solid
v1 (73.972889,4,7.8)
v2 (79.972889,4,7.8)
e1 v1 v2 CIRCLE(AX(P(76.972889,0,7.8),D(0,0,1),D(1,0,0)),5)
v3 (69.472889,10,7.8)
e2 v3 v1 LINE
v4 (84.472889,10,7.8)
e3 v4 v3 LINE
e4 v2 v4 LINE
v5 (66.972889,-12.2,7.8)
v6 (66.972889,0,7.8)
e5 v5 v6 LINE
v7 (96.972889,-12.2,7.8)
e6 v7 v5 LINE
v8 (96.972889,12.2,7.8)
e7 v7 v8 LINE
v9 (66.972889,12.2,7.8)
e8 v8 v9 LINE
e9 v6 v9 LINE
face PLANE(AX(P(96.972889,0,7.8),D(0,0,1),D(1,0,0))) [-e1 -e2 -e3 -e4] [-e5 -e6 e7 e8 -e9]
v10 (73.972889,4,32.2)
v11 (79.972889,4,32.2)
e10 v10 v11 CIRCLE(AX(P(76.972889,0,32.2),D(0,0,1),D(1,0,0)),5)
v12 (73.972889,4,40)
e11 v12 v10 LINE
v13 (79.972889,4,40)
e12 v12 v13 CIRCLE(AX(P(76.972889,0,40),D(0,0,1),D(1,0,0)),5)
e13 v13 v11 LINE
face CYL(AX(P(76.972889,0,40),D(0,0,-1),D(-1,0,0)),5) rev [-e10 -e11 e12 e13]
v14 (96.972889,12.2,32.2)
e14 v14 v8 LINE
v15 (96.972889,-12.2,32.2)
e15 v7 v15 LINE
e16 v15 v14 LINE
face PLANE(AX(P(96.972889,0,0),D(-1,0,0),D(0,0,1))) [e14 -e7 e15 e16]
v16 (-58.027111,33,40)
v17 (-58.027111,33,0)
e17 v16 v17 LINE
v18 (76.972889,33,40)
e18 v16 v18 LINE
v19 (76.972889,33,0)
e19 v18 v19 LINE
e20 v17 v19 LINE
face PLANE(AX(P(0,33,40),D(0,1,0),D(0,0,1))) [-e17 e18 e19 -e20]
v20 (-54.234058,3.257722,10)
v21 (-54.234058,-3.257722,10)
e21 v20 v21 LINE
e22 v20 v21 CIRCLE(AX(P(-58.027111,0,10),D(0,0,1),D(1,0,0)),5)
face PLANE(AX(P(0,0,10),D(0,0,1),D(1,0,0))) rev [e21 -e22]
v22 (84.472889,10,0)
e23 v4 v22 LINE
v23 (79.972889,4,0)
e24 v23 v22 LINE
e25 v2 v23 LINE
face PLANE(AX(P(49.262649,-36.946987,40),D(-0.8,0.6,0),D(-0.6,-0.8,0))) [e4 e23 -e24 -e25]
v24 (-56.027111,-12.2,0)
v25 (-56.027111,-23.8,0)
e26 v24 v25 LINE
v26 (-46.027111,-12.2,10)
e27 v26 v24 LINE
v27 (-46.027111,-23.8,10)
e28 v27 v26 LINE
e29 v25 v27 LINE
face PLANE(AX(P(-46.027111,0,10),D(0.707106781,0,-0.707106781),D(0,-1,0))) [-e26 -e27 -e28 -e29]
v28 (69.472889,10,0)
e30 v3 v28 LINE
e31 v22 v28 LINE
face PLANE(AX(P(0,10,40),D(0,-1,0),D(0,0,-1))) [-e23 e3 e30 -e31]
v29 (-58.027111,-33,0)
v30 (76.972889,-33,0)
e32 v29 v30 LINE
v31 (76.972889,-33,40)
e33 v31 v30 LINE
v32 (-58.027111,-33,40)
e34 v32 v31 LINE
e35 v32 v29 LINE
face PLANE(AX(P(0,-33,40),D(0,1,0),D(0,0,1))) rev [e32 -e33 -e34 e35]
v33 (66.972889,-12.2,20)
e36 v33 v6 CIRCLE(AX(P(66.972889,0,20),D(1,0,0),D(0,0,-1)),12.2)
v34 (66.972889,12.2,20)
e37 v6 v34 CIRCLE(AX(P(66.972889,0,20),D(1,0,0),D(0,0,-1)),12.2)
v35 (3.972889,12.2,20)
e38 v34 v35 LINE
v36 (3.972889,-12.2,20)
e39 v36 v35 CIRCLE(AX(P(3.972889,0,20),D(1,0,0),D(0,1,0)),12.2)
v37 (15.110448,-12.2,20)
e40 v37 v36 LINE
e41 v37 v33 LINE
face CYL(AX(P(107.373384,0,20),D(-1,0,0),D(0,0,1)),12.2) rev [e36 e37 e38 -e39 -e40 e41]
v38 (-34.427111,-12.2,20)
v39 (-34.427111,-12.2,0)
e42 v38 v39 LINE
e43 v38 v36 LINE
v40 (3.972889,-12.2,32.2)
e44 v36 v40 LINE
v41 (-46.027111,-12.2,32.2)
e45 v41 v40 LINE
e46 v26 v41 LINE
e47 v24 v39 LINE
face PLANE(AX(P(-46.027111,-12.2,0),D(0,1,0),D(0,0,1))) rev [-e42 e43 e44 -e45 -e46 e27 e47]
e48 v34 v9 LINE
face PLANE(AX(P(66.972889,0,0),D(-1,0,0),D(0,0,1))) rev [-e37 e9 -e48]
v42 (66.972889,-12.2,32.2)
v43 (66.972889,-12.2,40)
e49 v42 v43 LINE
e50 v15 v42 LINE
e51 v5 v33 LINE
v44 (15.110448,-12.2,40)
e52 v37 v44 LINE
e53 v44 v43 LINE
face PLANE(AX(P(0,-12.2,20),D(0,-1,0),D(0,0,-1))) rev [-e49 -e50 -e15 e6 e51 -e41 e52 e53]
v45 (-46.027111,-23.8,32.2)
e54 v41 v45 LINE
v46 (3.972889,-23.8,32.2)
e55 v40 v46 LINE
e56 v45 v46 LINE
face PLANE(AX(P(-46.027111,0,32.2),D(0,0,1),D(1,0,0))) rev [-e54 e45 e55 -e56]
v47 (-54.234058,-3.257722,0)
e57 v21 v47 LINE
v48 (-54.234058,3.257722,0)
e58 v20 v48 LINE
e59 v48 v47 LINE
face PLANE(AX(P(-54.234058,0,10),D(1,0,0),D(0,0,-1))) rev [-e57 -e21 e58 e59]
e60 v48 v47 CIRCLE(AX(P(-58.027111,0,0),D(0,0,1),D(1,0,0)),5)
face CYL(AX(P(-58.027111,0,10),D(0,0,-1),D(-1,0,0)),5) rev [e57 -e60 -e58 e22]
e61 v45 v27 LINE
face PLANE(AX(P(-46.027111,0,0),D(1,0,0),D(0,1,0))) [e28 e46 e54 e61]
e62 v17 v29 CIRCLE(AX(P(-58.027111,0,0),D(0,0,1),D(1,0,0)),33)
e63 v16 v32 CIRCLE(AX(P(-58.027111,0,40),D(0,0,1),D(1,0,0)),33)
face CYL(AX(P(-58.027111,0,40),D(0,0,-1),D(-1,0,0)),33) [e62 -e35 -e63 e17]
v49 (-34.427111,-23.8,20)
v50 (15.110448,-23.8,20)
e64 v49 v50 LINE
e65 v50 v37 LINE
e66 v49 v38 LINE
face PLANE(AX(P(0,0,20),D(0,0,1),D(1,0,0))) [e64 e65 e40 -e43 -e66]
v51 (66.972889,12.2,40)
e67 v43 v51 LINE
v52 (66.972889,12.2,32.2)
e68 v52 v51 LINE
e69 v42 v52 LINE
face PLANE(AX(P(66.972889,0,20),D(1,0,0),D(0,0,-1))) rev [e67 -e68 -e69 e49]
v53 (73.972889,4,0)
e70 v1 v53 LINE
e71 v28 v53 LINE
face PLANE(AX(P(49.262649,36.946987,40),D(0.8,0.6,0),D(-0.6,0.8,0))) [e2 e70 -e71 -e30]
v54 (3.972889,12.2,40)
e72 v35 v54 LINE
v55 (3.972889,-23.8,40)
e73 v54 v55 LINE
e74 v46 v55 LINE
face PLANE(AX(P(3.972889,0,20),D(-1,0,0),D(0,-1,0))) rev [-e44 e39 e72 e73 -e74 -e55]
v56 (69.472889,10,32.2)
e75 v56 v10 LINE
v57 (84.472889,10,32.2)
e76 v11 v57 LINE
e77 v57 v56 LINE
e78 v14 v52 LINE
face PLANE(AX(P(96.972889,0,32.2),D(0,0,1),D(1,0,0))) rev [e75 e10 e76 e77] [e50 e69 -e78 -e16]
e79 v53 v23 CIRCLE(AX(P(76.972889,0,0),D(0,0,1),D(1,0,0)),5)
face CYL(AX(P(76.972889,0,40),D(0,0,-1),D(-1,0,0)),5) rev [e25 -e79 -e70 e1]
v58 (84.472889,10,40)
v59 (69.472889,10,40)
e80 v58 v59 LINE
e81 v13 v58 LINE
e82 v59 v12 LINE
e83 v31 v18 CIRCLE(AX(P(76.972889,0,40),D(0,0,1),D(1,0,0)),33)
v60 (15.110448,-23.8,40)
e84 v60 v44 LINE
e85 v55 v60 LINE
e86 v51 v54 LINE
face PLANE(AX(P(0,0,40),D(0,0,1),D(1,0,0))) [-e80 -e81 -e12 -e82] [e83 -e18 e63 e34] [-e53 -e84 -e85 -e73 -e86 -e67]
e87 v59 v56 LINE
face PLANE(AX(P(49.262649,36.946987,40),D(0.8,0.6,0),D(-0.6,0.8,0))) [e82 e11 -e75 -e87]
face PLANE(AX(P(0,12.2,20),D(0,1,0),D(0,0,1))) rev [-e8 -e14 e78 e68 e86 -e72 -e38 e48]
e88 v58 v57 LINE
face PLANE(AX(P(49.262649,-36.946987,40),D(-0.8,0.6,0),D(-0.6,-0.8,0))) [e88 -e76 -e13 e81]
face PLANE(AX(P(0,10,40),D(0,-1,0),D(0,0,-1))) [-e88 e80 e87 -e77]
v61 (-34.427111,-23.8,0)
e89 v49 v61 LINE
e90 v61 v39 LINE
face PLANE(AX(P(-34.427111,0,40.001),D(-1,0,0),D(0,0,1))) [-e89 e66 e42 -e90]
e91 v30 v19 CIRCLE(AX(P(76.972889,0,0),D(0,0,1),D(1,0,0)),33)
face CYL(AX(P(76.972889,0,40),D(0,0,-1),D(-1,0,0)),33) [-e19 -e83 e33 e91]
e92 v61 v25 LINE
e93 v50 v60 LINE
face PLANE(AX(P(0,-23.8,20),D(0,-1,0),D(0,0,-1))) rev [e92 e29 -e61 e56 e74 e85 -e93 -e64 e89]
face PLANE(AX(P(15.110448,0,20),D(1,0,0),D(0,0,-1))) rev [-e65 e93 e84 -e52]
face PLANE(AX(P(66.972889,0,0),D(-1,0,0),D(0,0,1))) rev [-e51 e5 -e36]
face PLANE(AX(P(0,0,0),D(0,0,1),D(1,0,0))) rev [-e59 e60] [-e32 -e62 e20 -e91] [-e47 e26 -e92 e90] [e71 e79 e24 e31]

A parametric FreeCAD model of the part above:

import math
import FreeCAD as App
import Part
import Sketcher


def edges_at(feature, points):
    """Names of the edges that pass closest to the given points."""
    edges = feature.Shape.Edges
    near = lambda p: min(range(len(edges)), key=lambda i: edges[i].distToShape(Part.Vertex(*p))[0])
    return sorted({f"Edge{near(p) + 1}" for p in points})


def add_polygon(sketch, points):
    """Adds a closed chain of lines whose ends are joined by coincident constraints."""
    first, n = sketch.GeometryCount, len(points)
    for a, b in zip(points, points[1:] + points[:1]):
        sketch.addGeometry(Part.LineSegment(App.Vector(*a, 0), App.Vector(*b, 0)), False)
    for i in range(n):
        sketch.addConstraint(Sketcher.Constraint("Coincident", first + i, 2, first + (i + 1) % n, 1))

doc = App.newDocument("Part")
body = doc.addObject("PartDesign::Body", "Body")

sketch1 = body.newObject("Sketcher::SketchObject", "Sketch")
sketch1.AttachmentSupport = (doc.getObject("XY_Plane"), [""])
sketch1.MapMode = "FlatFace"
sketch1.addGeometry([
    Part.LineSegment(App.Vector(76.972889, 33, 0), App.Vector(-58.027111, 33, 0)),
    Part.ArcOfCircle(Part.Circle(App.Vector(-58.027111, 0, 0), App.Vector(0, 0, 1), 33), math.radians(90), math.radians(270)),
    Part.LineSegment(App.Vector(-58.027111, -33, 0), App.Vector(76.972889, -33, 0)),
    Part.ArcOfCircle(Part.Circle(App.Vector(76.972889, 0, 0), App.Vector(0, 0, 1), 33), math.radians(-90), math.radians(90)),
    Part.LineSegment(App.Vector(73.972889, 4, 0), App.Vector(69.472889, 10, 0)),
    Part.LineSegment(App.Vector(69.472889, 10, 0), App.Vector(84.472889, 10, 0)),
    Part.LineSegment(App.Vector(84.472889, 10, 0), App.Vector(79.972889, 4, 0)),
    Part.ArcOfCircle(Part.Circle(App.Vector(76.972889, 0, 0), App.Vector(0, 0, 1), 5), math.radians(126.869898), math.radians(413.130102)),
], False)
sketch1.addConstraint([
    Sketcher.Constraint("Tangent", 0, 2, 1, 1),
    Sketcher.Constraint("Tangent", 1, 2, 2, 1),
    Sketcher.Constraint("Tangent", 2, 2, 3, 1),
    Sketcher.Constraint("Tangent", 3, 2, 0, 1),
    Sketcher.Constraint("Coincident", 4, 2, 5, 1),
    Sketcher.Constraint("Coincident", 5, 2, 6, 1),
    Sketcher.Constraint("Coincident", 6, 2, 7, 2),
    Sketcher.Constraint("Coincident", 7, 1, 4, 1),
    Sketcher.Constraint("Horizontal", 0),
    Sketcher.Constraint("Horizontal", 2),
    Sketcher.Constraint("Horizontal", 5),
    Sketcher.Constraint("Coincident", 7, 3, 3, 3),
    Sketcher.Constraint("PointOnObject", 1, 3, -1),
    Sketcher.Constraint("Horizontal", 6, 2, 7, 1),
    Sketcher.Constraint("Equal", 4, 6),
    Sketcher.Constraint("Radius", 1, 33.0),
    Sketcher.Constraint("Radius", 7, 5.0),
    Sketcher.Constraint("DistanceX", 0, 2, 0, 1, 135.0),
    Sketcher.Constraint("DistanceX", 5, 1, 5, 2, 15.0),
    Sketcher.Constraint("DistanceY", -1, 1, 4, 2, 10.0),
    Sketcher.Constraint("DistanceY", -1, 1, 6, 2, 4.0),
    Sketcher.Constraint("DistanceX", 1, 3, -1, 1, 58.027111),
])
pad1 = body.newObject("PartDesign::Pad", "Pad")
pad1.Profile = sketch1
pad1.Length = 40

sketch2 = body.newObject("Sketcher::SketchObject", "Sketch001")
sketch2.AttachmentSupport = (doc.getObject("XY_Plane"), [""])
sketch2.MapMode = "FlatFace"
sketch2.addGeometry([
    Part.LineSegment(App.Vector(-54.234058, -3.257722, 0), App.Vector(-54.234058, 3.257722, 0)),
    Part.ArcOfCircle(Part.Circle(App.Vector(-58.027111, 0, 0), App.Vector(0, 0, 1), 5), math.radians(40.658145), math.radians(319.341855)),
], False)
sketch2.addConstraint([
    Sketcher.Constraint("Coincident", 0, 1, 1, 2),
    Sketcher.Constraint("Coincident", 1, 1, 0, 2),
    Sketcher.Constraint("Vertical", 0),
    Sketcher.Constraint("PointOnObject", 1, 3, -1),
    Sketcher.Constraint("Radius", 1, 5.0),
    Sketcher.Constraint("DistanceY", 0, 1, 0, 2, 6.515444),
    Sketcher.Constraint("DistanceX", 1, 3, -1, 1, 58.027111),
])
pocket1 = body.newObject("PartDesign::Pocket", "Pocket")
pocket1.Profile = sketch2
pocket1.Length = 10
pocket1.Reversed = True

sketch3 = body.newObject("Sketcher::SketchObject", "Sketch002")
sketch3.AttachmentSupport = (doc.getObject("XY_Plane"), [""])
sketch3.MapMode = "FlatFace"
sketch3.AttachmentOffset = App.Placement(App.Vector(0, 0, 40), App.Rotation())
add_polygon(sketch3, [(66.972889, -12.2), (66.972889, 12.2), (3.972889, 12.2), (3.972889, -23.8), (15.110448, -23.8), (15.110448, -12.2)])
sketch3.addConstraint([
    Sketcher.Constraint("Vertical", 0),
    Sketcher.Constraint("Horizontal", 1),
    Sketcher.Constraint("Vertical", 2),
    Sketcher.Constraint("Horizontal", 3),
    Sketcher.Constraint("Vertical", 4),
    Sketcher.Constraint("Horizontal", 5),
    Sketcher.Constraint("DistanceX", 1, 2, 1, 1, 63.0),
    Sketcher.Constraint("DistanceY", 2, 2, 2, 1, 36.0),
    Sketcher.Constraint("DistanceY", 0, 1, 0, 2, 24.4),
    Sketcher.Constraint("DistanceY", -1, 1, 0, 2, 12.2),
    Sketcher.Constraint("DistanceX", 3, 1, 3, 2, 11.137558),
    Sketcher.Constraint("DistanceX", -1, 1, 0, 2, 66.972889),
])
pocket2 = body.newObject("PartDesign::Pocket", "Pocket001")
pocket2.Profile = sketch3
pocket2.Length = 20

sketch4 = body.newObject("Sketcher::SketchObject", "Sketch003")
sketch4.AttachmentSupport = (doc.getObject("YZ_Plane"), [""])
sketch4.MapMode = "FlatFace"
sketch4.AttachmentOffset = App.Placement(App.Vector(0, 0, 3.972889), App.Rotation())
sketch4.addGeometry([
    Part.LineSegment(App.Vector(12.2, 20, 0), App.Vector(12.2, 40, 0)),
    Part.LineSegment(App.Vector(12.2, 40, 0), App.Vector(-12.2, 40, 0)),
    Part.LineSegment(App.Vector(-12.2, 40, 0), App.Vector(-12.2, 20, 0)),
    Part.ArcOfCircle(Part.Circle(App.Vector(0, 20, 0), App.Vector(0, 0, 1), 12.2), math.radians(180), math.radians(360)),
], False)
sketch4.addConstraint([
    Sketcher.Constraint("Coincident", 0, 2, 1, 1),
    Sketcher.Constraint("Coincident", 1, 2, 2, 1),
    Sketcher.Constraint("Tangent", 2, 2, 3, 1),
    Sketcher.Constraint("Tangent", 3, 2, 0, 1),
    Sketcher.Constraint("Vertical", 0),
    Sketcher.Constraint("Horizontal", 1),
    Sketcher.Constraint("Vertical", 2),
    Sketcher.Constraint("PointOnObject", 3, 3, -2),
    Sketcher.Constraint("Radius", 3, 12.2),
    Sketcher.Constraint("DistanceY", 0, 1, 0, 2, 20.0),
    Sketcher.Constraint("DistanceY", -1, 1, 3, 3, 20.0),
])
pocket3 = body.newObject("PartDesign::Pocket", "Pocket002")
pocket3.Profile = sketch4
pocket3.Length = 63
pocket3.Reversed = True

sketch5 = body.newObject("Sketcher::SketchObject", "Sketch004")
sketch5.AttachmentSupport = (doc.getObject("YZ_Plane"), [""])
sketch5.MapMode = "FlatFace"
sketch5.AttachmentOffset = App.Placement(App.Vector(0, 0, 66.972889), App.Rotation())
add_polygon(sketch5, [(12.2, 7.8), (-12.2, 7.8), (-12.2, 32.2), (12.2, 32.2)])
sketch5.addConstraint([
    Sketcher.Constraint("Horizontal", 0),
    Sketcher.Constraint("Vertical", 1),
    Sketcher.Constraint("Horizontal", 2),
    Sketcher.Constraint("Vertical", 3),
    Sketcher.Constraint("Equal", 2, 1),
    Sketcher.Constraint("DistanceX", 0, 2, 0, 1, 24.4),
    Sketcher.Constraint("DistanceX", 0, 2, -1, 1, 12.2),
    Sketcher.Constraint("DistanceY", -1, 1, 0, 2, 7.8),
])
pocket4 = body.newObject("PartDesign::Pocket", "Pocket003")
pocket4.Profile = sketch5
pocket4.Length = 30
pocket4.Reversed = True

sketch6 = body.newObject("Sketcher::SketchObject", "Sketch005")
sketch6.AttachmentSupport = (doc.getObject("YZ_Plane"), [""])
sketch6.MapMode = "FlatFace"
sketch6.AttachmentOffset = App.Placement(App.Vector(0, 0, 3.972889), App.Rotation())
add_polygon(sketch6, [(-12.2, 32.2), (-23.8, 32.2), (-23.8, 20), (-12.2, 20)])
sketch6.addConstraint([
    Sketcher.Constraint("Horizontal", 0),
    Sketcher.Constraint("Vertical", 1),
    Sketcher.Constraint("Horizontal", 2),
    Sketcher.Constraint("Vertical", 3),
    Sketcher.Constraint("DistanceX", 0, 2, 0, 1, 11.6),
    Sketcher.Constraint("DistanceY", 1, 2, 1, 1, 12.2),
    Sketcher.Constraint("DistanceY", -1, 1, 1, 2, 20.0),
    Sketcher.Constraint("DistanceX", 0, 2, -1, 1, 23.8),
])
pocket5 = body.newObject("PartDesign::Pocket", "Pocket004")
pocket5.Profile = sketch6
pocket5.Length = 50

sketch7 = body.newObject("Sketcher::SketchObject", "Sketch006")
sketch7.AttachmentSupport = (doc.getObject("XY_Plane"), [""])
sketch7.MapMode = "FlatFace"
add_polygon(sketch7, [(-34.427111, -12.2), (-34.427111, -23.8), (-46.027111, -23.8), (-46.027111, -12.2)])
sketch7.addConstraint([
    Sketcher.Constraint("Vertical", 0),
    Sketcher.Constraint("Horizontal", 1),
    Sketcher.Constraint("Vertical", 2),
    Sketcher.Constraint("Horizontal", 3),
    Sketcher.Constraint("Equal", 3, 0),
    Sketcher.Constraint("DistanceX", 1, 2, 1, 1, 11.6),
    Sketcher.Constraint("DistanceY", 0, 2, -1, 1, 23.8),
    Sketcher.Constraint("DistanceX", 0, 2, -1, 1, 34.427111),
])
pocket6 = body.newObject("PartDesign::Pocket", "Pocket005")
pocket6.Profile = sketch7
pocket6.Type = "UpToFirst"
pocket6.Reversed = True
doc.recompute()

chamfer = body.newObject("PartDesign::Chamfer", "Chamfer")
chamfer.Base = (pocket6, edges_at(pocket6, [(-46.027, -18, 0)]))
chamfer.Size = 10

doc.recompute()
